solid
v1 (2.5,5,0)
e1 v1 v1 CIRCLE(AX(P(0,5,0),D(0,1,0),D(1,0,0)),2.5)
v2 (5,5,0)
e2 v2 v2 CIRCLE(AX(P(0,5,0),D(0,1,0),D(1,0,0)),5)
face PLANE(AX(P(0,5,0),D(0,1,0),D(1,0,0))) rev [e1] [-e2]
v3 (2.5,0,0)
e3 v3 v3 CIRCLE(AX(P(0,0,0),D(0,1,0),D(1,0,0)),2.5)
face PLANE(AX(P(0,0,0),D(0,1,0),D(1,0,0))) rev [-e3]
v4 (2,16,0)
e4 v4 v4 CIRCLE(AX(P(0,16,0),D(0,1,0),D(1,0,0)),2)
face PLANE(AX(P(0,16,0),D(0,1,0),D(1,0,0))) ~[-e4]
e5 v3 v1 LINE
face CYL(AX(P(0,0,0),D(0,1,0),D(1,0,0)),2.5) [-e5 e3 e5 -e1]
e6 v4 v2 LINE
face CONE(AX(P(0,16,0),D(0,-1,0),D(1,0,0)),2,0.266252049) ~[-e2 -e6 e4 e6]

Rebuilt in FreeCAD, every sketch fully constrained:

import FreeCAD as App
import Part
import Sketcher

V = App.Vector

doc = App.newDocument("Part")
params = doc.addObject("Spreadsheet::Sheet", "Params")
for row, (alias, value) in enumerate([
    ("sketch1_width", "2 mm"),
    ("sketch1_height", "16 mm"),
    ("sketch1_height2", "5 mm"),
    ("sketch1_width2", "2.5 mm"),
    ("revolution_angle", "360 deg"),
], start=1):
    params.set(f"A{row}", alias)
    params.set(f"B{row}", "=" + value)
    params.setAlias(f"B{row}", alias)

body = doc.addObject("PartDesign::Body", "Body")

sketch1 = body.newObject("Sketcher::SketchObject", "Sketch")
sketch1.AttachmentSupport = (doc.getObject("XY_Plane"), [""])
sketch1.MapMode = "FlatFace"
sketch1.addGeometry([
    Part.LineSegment(V(0, 16, 0), V(0, 0, 0)),
    Part.LineSegment(V(0, 0, 0), V(2.5, 0, 0)),
    Part.LineSegment(V(2.5, 0, 0), V(2.5, 5, 0)),
    Part.LineSegment(V(2.5, 5, 0), V(5, 5, 0)),
    Part.LineSegment(V(5, 5, 0), V(2, 16, 0)),
    Part.LineSegment(V(2, 16, 0), V(0, 16, 0)),
], False)
sketch1.addConstraint([
    Sketcher.Constraint("Coincident", 0, 2, 1, 1),
    Sketcher.Constraint("Coincident", 1, 2, 2, 1),
    Sketcher.Constraint("Coincident", 2, 2, 3, 1),
    Sketcher.Constraint("Coincident", 3, 2, 4, 1),
    Sketcher.Constraint("Coincident", 4, 2, 5, 1),
    Sketcher.Constraint("Coincident", 5, 2, 0, 1),
    Sketcher.Constraint("Vertical", 0),
    Sketcher.Constraint("Horizontal", 1),
    Sketcher.Constraint("Vertical", 2),
    Sketcher.Constraint("Horizontal", 3),
    Sketcher.Constraint("Horizontal", 5),
    Sketcher.Constraint("Coincident", 0, 2, -1, 1),
    Sketcher.Constraint("Equal", 1, 3),
    Sketcher.Constraint("DistanceX", 5, 2, 5, 1, 2.0),
    Sketcher.Constraint("DistanceY", 0, 2, 0, 1, 16.0),
    Sketcher.Constraint("DistanceY", 2, 1, 2, 2, 5.0),
    Sketcher.Constraint("DistanceX", 1, 1, 1, 2, 2.5),
])
sketch1.setExpression("Constraints[13]", "Params.sketch1_width")
sketch1.setExpression("Constraints[14]", "Params.sketch1_height")
sketch1.setExpression("Constraints[15]", "Params.sketch1_height2")
sketch1.setExpression("Constraints[16]", "Params.sketch1_width2")
revolution = body.newObject("PartDesign::Revolution", "Revolution")
revolution.Profile = sketch1
revolution.ReferenceAxis = (sketch1, ["V_Axis"])
revolution.setExpression("Angle", "Params.revolution_angle")

doc.recompute()
